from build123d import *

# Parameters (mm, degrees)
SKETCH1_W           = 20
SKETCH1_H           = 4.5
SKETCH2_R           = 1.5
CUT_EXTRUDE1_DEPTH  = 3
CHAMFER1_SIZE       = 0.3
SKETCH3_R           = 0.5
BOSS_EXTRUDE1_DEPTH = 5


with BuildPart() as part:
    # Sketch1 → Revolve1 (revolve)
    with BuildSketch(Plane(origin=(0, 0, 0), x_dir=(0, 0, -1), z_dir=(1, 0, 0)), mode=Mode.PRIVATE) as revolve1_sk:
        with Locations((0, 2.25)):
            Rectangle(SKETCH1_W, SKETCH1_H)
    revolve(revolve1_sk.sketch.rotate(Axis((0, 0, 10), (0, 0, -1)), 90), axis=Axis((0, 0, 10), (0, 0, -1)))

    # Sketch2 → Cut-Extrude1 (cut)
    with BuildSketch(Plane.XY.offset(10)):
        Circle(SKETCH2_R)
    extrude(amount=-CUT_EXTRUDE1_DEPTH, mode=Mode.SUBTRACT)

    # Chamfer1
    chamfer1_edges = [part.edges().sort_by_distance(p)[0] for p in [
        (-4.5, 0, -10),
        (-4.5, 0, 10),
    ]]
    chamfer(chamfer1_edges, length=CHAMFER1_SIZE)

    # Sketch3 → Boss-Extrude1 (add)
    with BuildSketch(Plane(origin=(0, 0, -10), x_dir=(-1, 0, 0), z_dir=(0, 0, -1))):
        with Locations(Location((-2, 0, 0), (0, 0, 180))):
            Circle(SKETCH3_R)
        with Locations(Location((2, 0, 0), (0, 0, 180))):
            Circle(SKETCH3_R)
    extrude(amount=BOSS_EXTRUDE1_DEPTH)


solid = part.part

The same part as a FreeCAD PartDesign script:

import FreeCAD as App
import Part
import Sketcher
from FreeCAD import Vector
Q = App.Units.Quantity


def edges_at(feature, points):
    """Names of the edges that pass closest to the given points."""
    edges = feature.Shape.Edges
    near = lambda p: min(range(len(edges)), key=lambda i: edges[i].distToShape(Part.Vertex(*p))[0])
    return sorted({f"Edge{near(p) + 1}" for p in points})


def add_polygon(sketch, points):
    """Adds a closed chain of lines whose ends are joined by coincident constraints."""
    first, n = sketch.GeometryCount, len(points)
    for a, b in zip(points, points[1:] + points[:1]):
        sketch.addGeometry(Part.LineSegment(App.Vector(*a, 0), App.Vector(*b, 0)), False)
    for i in range(n):
        sketch.addConstraint(Sketcher.Constraint("Coincident", first + i, 2, first + (i + 1) % n, 1))

doc = App.newDocument("Part")
body = doc.addObject("PartDesign::Body", "Body")

# Sketch on YZ plane
sketch1 = body.newObject("Sketcher::SketchObject", "Sketch")
sketch1.AttachmentSupport = (doc.getObject("YZ_Plane"), [""])
sketch1.MapMode = "FlatFace"
add_polygon(sketch1, [(4.5, 10), (0, 10), (0, -10), (4.5, -10)])  # lines 0-3
sketch1.addConstraint(Sketcher.Constraint("Horizontal", 0))
sketch1.addConstraint(Sketcher.Constraint("Vertical", 1))
sketch1.addConstraint(Sketcher.Constraint("Horizontal", 2))
sketch1.addConstraint(Sketcher.Constraint("Vertical", 3))
sketch1.addConstraint(Sketcher.Constraint("Symmetric", 0, 2, 1, 2, -1, 1))
sketch1.addConstraint(Sketcher.Constraint("DistanceY", 1, 2, 1, 1, Q("20 mm")))
sketch1.addConstraint(Sketcher.Constraint("DistanceX", 0, 2, 0, 1, Q("4.5 mm")))
revolution = body.newObject("PartDesign::Revolution", "Revolution")
revolution.Profile = sketch1
revolution.ReferenceAxis = (sketch1, ["V_Axis"])
revolution.Angle = 360

# Sketch on XY plane
sketch2 = body.newObject("Sketcher::SketchObject", "Sketch001")
sketch2.AttachmentSupport = (doc.getObject("XY_Plane"), [""])
sketch2.MapMode = "FlatFace"
sketch2.AttachmentOffset = App.Placement(Vector(0, 0, 10), App.Rotation())
sketch2.addGeometry(Part.Circle(Vector(0, 0, 0), Vector(0, 0, 1), 1.5), False)
sketch2.addConstraint(Sketcher.Constraint("Coincident", 0, 3, -1, 1))
sketch2.addConstraint(Sketcher.Constraint("Diameter", 0, Q("3 mm")))
pocket1 = body.newObject("PartDesign::Pocket", "Pocket")
pocket1.Profile = sketch2
pocket1.Length = 3
doc.recompute()

chamfer = body.newObject("PartDesign::Chamfer", "Chamfer")
chamfer.Base = (pocket1, edges_at(pocket1, [(-4.5, 0, -10), (-4.5, 0, 10)]))
chamfer.Size = 0.3

# Sketch on XY plane
sketch3 = body.newObject("Sketcher::SketchObject", "Sketch002")
sketch3.AttachmentSupport = (doc.getObject("XY_Plane"), [""])
sketch3.MapMode = "FlatFace"
sketch3.AttachmentOffset = App.Placement(Vector(0, 0, -10), App.Rotation())
sketch3.addGeometry(Part.Circle(Vector(2, 0, 0), Vector(0, 0, 1), 0.5), False)
sketch3.addGeometry(Part.Circle(Vector(-2, 0, 0), Vector(0, 0, 1), 0.5), False)
sketch3.addConstraint(Sketcher.Constraint("Equal", 0, 1))
sketch3.addConstraint(Sketcher.Constraint("Symmetric", 0, 3, 1, 3, -1, 1))
sketch3.addConstraint(Sketcher.Constraint("PointOnObject", 0, 3, -1))
sketch3.addConstraint(Sketcher.Constraint("Diameter", 0, Q("1 mm")))
sketch3.addConstraint(Sketcher.Constraint("DistanceX", -1, 1, 0, 3, Q("2 mm")))
pad1 = body.newObject("PartDesign::Pad", "Pad")
pad1.Profile = sketch3
pad1.Length = 5
pad1.Reversed = True

doc.recompute()
